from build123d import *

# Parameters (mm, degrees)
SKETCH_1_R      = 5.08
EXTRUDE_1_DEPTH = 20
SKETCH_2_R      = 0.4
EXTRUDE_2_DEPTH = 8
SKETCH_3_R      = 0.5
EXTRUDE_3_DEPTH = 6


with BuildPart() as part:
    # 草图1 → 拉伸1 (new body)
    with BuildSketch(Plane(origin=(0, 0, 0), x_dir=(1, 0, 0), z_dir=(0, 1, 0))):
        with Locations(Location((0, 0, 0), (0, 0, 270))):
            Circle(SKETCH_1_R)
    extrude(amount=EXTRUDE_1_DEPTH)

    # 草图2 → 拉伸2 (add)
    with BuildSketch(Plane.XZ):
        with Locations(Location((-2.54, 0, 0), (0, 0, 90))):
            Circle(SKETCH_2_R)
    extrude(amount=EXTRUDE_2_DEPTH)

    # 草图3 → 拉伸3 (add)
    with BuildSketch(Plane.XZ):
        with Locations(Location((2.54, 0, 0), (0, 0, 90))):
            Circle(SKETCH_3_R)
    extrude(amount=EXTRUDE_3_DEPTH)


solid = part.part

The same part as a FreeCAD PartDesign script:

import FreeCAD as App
import Part
import Sketcher
from FreeCAD import Vector

doc = App.newDocument("Part")
body = doc.addObject("PartDesign::Body", "Body")

# Sketch on XZ plane
sketch1 = body.newObject("Sketcher::SketchObject", "Sketch")
sketch1.AttachmentSupport = (doc.getObject("XZ_Plane"), [""])
sketch1.MapMode = "FlatFace"
sketch1.addGeometry(Part.Circle(Vector(0, 0, 0), Vector(0, 0, 1), 5), False)
sketch1.addConstraint([
    Sketcher.Constraint("Coincident", 0, 3, -1, 1),
    Sketcher.Constraint("Diameter", 0, 10.16),
])
pad1 = body.newObject("PartDesign::Pad", "Pad")
pad1.Profile = sketch1
pad1.Length = 20
pad1.Reversed = True

# Sketch on XZ plane
sketch2 = body.newObject("Sketcher::SketchObject", "Sketch001")
sketch2.AttachmentSupport = (doc.getObject("XZ_Plane"), [""])
sketch2.MapMode = "FlatFace"
sketch2.addGeometry(Part.Circle(Vector(-2.54, 0, 0), Vector(0, 0, 1), 0.4), False)
sketch2.addConstraint([
    Sketcher.Constraint("PointOnObject", 0, 3, -1),
    Sketcher.Constraint("Diameter", 0, 0.8),
    Sketcher.Constraint("DistanceX", 0, 3, -1, 1, 2.54),
])
pad2 = body.newObject("PartDesign::Pad", "Pad001")
pad2.Profile = sketch2
pad2.Length = 8

# Sketch on XZ plane
sketch3 = body.newObject("Sketcher::SketchObject", "Sketch002")
sketch3.AttachmentSupport = (doc.getObject("XZ_Plane"), [""])
sketch3.MapMode = "FlatFace"
sketch3.addGeometry(Part.Circle(Vector(2.5, 0, 0), Vector(0, 0, 1), 0.5), False)
sketch3.addConstraint([
    Sketcher.Constraint("PointOnObject", 0, 3, -1),
    Sketcher.Constraint("Diameter", 0, 1.0),
    Sketcher.Constraint("DistanceX", -1, 1, 0, 3, 2.54),
])
pad3 = body.newObject("PartDesign::Pad", "Pad002")
pad3.Profile = sketch3
pad3.Length = 6

doc.recompute()
